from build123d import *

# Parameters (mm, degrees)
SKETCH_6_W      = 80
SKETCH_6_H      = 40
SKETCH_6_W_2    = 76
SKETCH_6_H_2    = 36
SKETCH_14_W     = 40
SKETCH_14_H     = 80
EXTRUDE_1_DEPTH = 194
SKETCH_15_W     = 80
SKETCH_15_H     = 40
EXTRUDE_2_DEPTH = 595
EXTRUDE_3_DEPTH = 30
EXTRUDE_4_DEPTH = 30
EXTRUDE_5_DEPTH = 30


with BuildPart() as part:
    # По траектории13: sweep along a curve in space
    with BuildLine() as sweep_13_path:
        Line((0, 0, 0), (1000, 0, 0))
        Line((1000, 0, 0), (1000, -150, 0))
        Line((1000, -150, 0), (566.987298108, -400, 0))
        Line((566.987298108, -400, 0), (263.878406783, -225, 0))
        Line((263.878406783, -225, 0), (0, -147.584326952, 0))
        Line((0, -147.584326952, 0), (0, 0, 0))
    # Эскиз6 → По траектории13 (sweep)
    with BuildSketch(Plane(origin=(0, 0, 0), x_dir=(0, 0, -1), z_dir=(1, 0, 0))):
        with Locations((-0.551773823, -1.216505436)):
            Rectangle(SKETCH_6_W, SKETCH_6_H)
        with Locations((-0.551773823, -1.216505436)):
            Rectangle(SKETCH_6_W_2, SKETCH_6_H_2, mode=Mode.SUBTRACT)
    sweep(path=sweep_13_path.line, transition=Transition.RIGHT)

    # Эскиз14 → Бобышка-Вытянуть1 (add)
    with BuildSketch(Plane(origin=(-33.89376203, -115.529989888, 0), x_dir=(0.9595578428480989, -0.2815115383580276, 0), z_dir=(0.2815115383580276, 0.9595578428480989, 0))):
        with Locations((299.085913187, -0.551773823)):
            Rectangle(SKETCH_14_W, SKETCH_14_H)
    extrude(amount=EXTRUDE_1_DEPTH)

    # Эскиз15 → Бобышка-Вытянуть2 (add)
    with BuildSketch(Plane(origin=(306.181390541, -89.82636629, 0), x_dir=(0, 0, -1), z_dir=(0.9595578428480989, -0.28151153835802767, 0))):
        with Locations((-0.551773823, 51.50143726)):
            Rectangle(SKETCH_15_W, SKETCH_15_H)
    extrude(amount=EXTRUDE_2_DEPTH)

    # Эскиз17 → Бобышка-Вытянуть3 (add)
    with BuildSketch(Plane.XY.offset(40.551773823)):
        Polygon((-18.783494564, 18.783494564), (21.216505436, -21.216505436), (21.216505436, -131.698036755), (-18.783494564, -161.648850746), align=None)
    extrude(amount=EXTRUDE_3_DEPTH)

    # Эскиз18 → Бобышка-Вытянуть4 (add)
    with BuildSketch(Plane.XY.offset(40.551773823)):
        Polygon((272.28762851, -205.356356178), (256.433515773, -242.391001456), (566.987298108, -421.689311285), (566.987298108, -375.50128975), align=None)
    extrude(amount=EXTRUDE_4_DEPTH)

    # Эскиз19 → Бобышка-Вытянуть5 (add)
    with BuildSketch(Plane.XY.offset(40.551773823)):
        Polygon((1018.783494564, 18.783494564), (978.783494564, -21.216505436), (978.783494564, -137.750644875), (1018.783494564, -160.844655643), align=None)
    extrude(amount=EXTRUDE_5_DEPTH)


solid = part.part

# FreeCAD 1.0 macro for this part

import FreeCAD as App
import Part
import Sketcher

V = App.Vector
Q = App.Units.Quantity


def add_polygon(sketch, points):
    """Adds a closed chain of lines whose ends are joined by coincident constraints."""
    first, n = sketch.GeometryCount, len(points)
    for a, b in zip(points, points[1:] + points[:1]):
        sketch.addGeometry(Part.LineSegment(App.Vector(*a, 0), App.Vector(*b, 0)), False)
    for i in range(n):
        sketch.addConstraint(Sketcher.Constraint("Coincident", first + i, 2, first + (i + 1) % n, 1))

doc = App.newDocument("Part")
params = doc.addObject("Spreadsheet::Sheet", "Params")
for row, (alias, value) in enumerate([
    ("sketch1_width", "40 mm"),
    ("sketch1_width2", "36 mm"),
    ("sketch1_height", "80 mm"),
    ("sketch1_height2", "76 mm"),
    ("sketch2_width", "1000 mm"),
    ("sketch2_height", "150 mm"),
    ("sketch2_length", "500 mm"),
    ("sketch2_length2", "350 mm"),
    ("sketch2_length3", "275 mm"),
    ("sketch3_width", "40 mm"),
    ("sketch3_height", "80 mm"),
    ("pad1_length", "194 mm"),
    ("sketch4_width", "80 mm"),
    ("sketch4_height", "40 mm"),
    ("pad2_length", "595 mm"),
    ("pad3_length", "30 mm"),
    ("pad4_length", "30 mm"),
    ("pad5_length", "30 mm"),
], start=1):
    params.set(f"A{row}", alias)
    params.set(f"B{row}", "=" + value)
    params.setAlias(f"B{row}", alias)

body = doc.addObject("PartDesign::Body", "Body")

# Sketch on YZ plane
sketch1 = body.newObject("Sketcher::SketchObject", "Sketch")
sketch1.AttachmentSupport = (doc.getObject("YZ_Plane"), [""])
sketch1.MapMode = "FlatFace"
add_polygon(sketch1, [(18.783495, 40.551774), (-21.216505, 40.551774), (-21.216505, -39.448226), (18.783495, -39.448226)])  # lines 0-3
add_polygon(sketch1, [(-19.216505, -37.448226), (-19.216505, 38.551774), (16.783495, 38.551774), (16.783495, -37.448226)])  # lines 4-7
sketch1.addConstraint(Sketcher.Constraint("Horizontal", 0))
sketch1.addConstraint(Sketcher.Constraint("Vertical", 1))
sketch1.addConstraint(Sketcher.Constraint("Horizontal", 2))
sketch1.addConstraint(Sketcher.Constraint("Vertical", 3))
sketch1.addConstraint(Sketcher.Constraint("Vertical", 4))
sketch1.addConstraint(Sketcher.Constraint("Horizontal", 5))
sketch1.addConstraint(Sketcher.Constraint("Vertical", 6))
sketch1.addConstraint(Sketcher.Constraint("Horizontal", 7))
sketch1.addConstraint(Sketcher.Constraint("DistanceX", 0, 2, 0, 1, Q("40 mm")))
sketch1.addConstraint(Sketcher.Constraint("DistanceX", 5, 1, 5, 2, Q("36 mm")))
sketch1.addConstraint(Sketcher.Constraint("DistanceY", 1, 2, 1, 1, Q("80 mm")))
sketch1.addConstraint(Sketcher.Constraint("DistanceY", 4, 1, 4, 2, Q("76 mm")))
sketch1.addConstraint(Sketcher.Constraint("DistanceX", 0, 2, 4, 2, Q("2 mm")))
sketch1.addConstraint(Sketcher.Constraint("DistanceY", 4, 2, 0, 2, Q("2 mm")))
sketch1.addConstraint(Sketcher.Constraint("DistanceX", 0, 2, -1, 1, Q("21.216505 mm")))
sketch1.addConstraint(Sketcher.Constraint("DistanceY", -1, 1, 0, 2, Q("40.551774 mm")))
sketch1.setExpression("Constraints[16]", "Params.sketch1_width")
sketch1.setExpression("Constraints[17]", "Params.sketch1_width2")
sketch1.setExpression("Constraints[18]", "Params.sketch1_height")
sketch1.setExpression("Constraints[19]", "Params.sketch1_height2")

# Sketch on XY plane
sketch2 = body.newObject("Sketcher::SketchObject", "Sketch001")
sketch2.AttachmentSupport = (doc.getObject("XY_Plane"), [""])
sketch2.MapMode = "FlatFace"
add_polygon(sketch2, [(0, 0), (1000, 0), (1000, -150), (566.987298, -400), (263.878407, -225), (0, -147.584327)])  # lines 0-5
sketch2.addConstraint(Sketcher.Constraint("Horizontal", 0))
sketch2.addConstraint(Sketcher.Constraint("Vertical", 1))
sketch2.addConstraint(Sketcher.Constraint("Vertical", 5))
sketch2.addConstraint(Sketcher.Constraint("Coincident", 5, 2, -1, 1))
sketch2.addConstraint(Sketcher.Constraint("DistanceX", 0, 1, 0, 2, Q("1000 mm")))
sketch2.addConstraint(Sketcher.Constraint("DistanceY", 1, 2, 1, 1, Q("150 mm")))
sketch2.addConstraint(Sketcher.Constraint("Angle", 2, Q("-150 deg")))
sketch2.addConstraint(Sketcher.Constraint("Angle", 3, Q("150 deg")))
sketch2.addConstraint(Sketcher.Constraint("Distance", 2, Q("500 mm")))
sketch2.addConstraint(Sketcher.Constraint("Distance", 3, Q("350 mm")))
sketch2.addConstraint(Sketcher.Constraint("Distance", 4, Q("275 mm")))
sketch2.setExpression("Constraints[10]", "Params.sketch2_width")
sketch2.setExpression("Constraints[11]", "Params.sketch2_height")
sketch2.setExpression("Constraints[14]", "Params.sketch2_length")
sketch2.setExpression("Constraints[15]", "Params.sketch2_length2")
sketch2.setExpression("Constraints[16]", "Params.sketch2_length3")
doc.recompute()

additivepipe = body.newObject("PartDesign::AdditivePipe", "AdditivePipe")
additivepipe.Profile = sketch1
additivepipe.Spine = (sketch2, ["Edge1", "Edge2", "Edge3", "Edge4", "Edge5", "Edge6"])
additivepipe.Transition = "Right corner"

# Sketch on an angled plane
sketch3 = body.newObject("Sketcher::SketchObject", "Sketch002")
sketch3.Placement = App.Placement(V(-33.893762, -115.52999, 0), App.Rotation(V(0.959557843, -0.281511538, 0), V(0, 0, -1), V(0.281511538, 0.959557843, 0), "ZXY"))
add_polygon(sketch3, [(279.085913, 39.448226), (279.085913, -40.551774), (319.085913, -40.551774), (319.085913, 39.448226)])  # lines 0-3
sketch3.addConstraint(Sketcher.Constraint("Vertical", 0))
sketch3.addConstraint(Sketcher.Constraint("Horizontal", 1))
sketch3.addConstraint(Sketcher.Constraint("Vertical", 2))
sketch3.addConstraint(Sketcher.Constraint("Horizontal", 3))
sketch3.addConstraint(Sketcher.Constraint("DistanceX", 1, 1, 1, 2, Q("40 mm")))
sketch3.addConstraint(Sketcher.Constraint("DistanceY", 0, 2, 0, 1, Q("80 mm")))
sketch3.addConstraint(Sketcher.Constraint("DistanceX", -1, 1, 0, 2, Q("279.085913 mm")))
sketch3.addConstraint(Sketcher.Constraint("DistanceY", 0, 2, -1, 1, Q("40.551774 mm")))
sketch3.setExpression("Constraints[8]", "Params.sketch3_width")
sketch3.setExpression("Constraints[9]", "Params.sketch3_height")
pad1 = body.newObject("PartDesign::Pad", "Pad")
pad1.Profile = sketch3
pad1.setExpression("Length", "Params.pad1_length")

# Sketch on an angled plane
sketch4 = body.newObject("Sketcher::SketchObject", "Sketch003")
sketch4.Placement = App.Placement(V(306.181391, -89.826366, 0), App.Rotation(V(0, 0, -1), V(0.281511538, 0.959557843, 0), V(0.959557843, -0.281511538, 0), "ZXY"))
add_polygon(sketch4, [(-40.551774, 71.501437), (-40.551774, 31.501437), (39.448226, 31.501437), (39.448226, 71.501437)])  # lines 0-3
sketch4.addConstraint(Sketcher.Constraint("Vertical", 0))
sketch4.addConstraint(Sketcher.Constraint("Horizontal", 1))
sketch4.addConstraint(Sketcher.Constraint("Vertical", 2))
sketch4.addConstraint(Sketcher.Constraint("Horizontal", 3))
sketch4.addConstraint(Sketcher.Constraint("DistanceX", 1, 1, 1, 2, Q("80 mm")))
sketch4.addConstraint(Sketcher.Constraint("DistanceY", 0, 2, 0, 1, Q("40 mm")))
sketch4.addConstraint(Sketcher.Constraint("DistanceX", 0, 2, -1, 1, Q("40.551774 mm")))
sketch4.addConstraint(Sketcher.Constraint("DistanceY", -1, 1, 0, 2, Q("31.501437 mm")))
sketch4.setExpression("Constraints[8]", "Params.sketch4_width")
sketch4.setExpression("Constraints[9]", "Params.sketch4_height")
pad2 = body.newObject("PartDesign::Pad", "Pad001")
pad2.Profile = sketch4
pad2.setExpression("Length", "Params.pad2_length")

# Sketch on XY plane
sketch5 = body.newObject("Sketcher::SketchObject", "Sketch004")
sketch5.AttachmentSupport = (doc.getObject("XY_Plane"), [""])
sketch5.MapMode = "FlatFace"
sketch5.AttachmentOffset = App.Placement(V(0, 0, 40.551774), App.Rotation())
add_polygon(sketch5, [(21.216505, -21.216505), (-18.783495, 18.783495), (-18.783495, -161.648851), (21.216505, -131.698037)])  # lines 0-3
sketch5.addConstraint(Sketcher.Constraint("Vertical", 1))
sketch5.addConstraint(Sketcher.Constraint("Vertical", 3))
sketch5.addConstraint(Sketcher.Constraint("Angle", 0, Q("135 deg")))
sketch5.addConstraint(Sketcher.Constraint("DistanceX", 1, 2, 2, 2, Q("40 mm")))
sketch5.addConstraint(Sketcher.Constraint("DistanceY", 3, 1, 3, 2, Q("110.481531 mm")))
sketch5.addConstraint(Sketcher.Constraint("DistanceY", 1, 2, 1, 1, Q("180.432345 mm")))
sketch5.addConstraint(Sketcher.Constraint("DistanceY", 1, 2, -1, 1, Q("161.648851 mm")))
sketch5.addConstraint(Sketcher.Constraint("DistanceX", 0, 2, -1, 1, Q("18.783495 mm")))
pad3 = body.newObject("PartDesign::Pad", "Pad002")
pad3.Profile = sketch5
pad3.setExpression("Length", "Params.pad3_length")

# Sketch on XY plane
sketch6 = body.newObject("Sketcher::SketchObject", "Sketch005")
sketch6.AttachmentSupport = (doc.getObject("XY_Plane"), [""])
sketch6.MapMode = "FlatFace"
sketch6.AttachmentOffset = App.Placement(V(0, 0, 40.551774), App.Rotation())
add_polygon(sketch6, [(272.287629, -205.356356), (256.433516, -242.391001), (566.987298, -421.689311), (566.987298, -375.50129)])  # lines 0-3
sketch6.addConstraint(Sketcher.Constraint("Vertical", 2))
sketch6.addConstraint(Sketcher.Constraint("Parallel", 1, 3))
sketch6.addConstraint(Sketcher.Constraint("Angle", 1, Q("-30 deg")))
sketch6.addConstraint(Sketcher.Constraint("DistanceY", 0, 2, -1, 1, Q("242.391001 mm")))
sketch6.addConstraint(Sketcher.Constraint("DistanceY", 2, 1, 2, 2, Q("46.188022 mm")))
sketch6.addConstraint(Sketcher.Constraint("DistanceX", -1, 1, 1, 2, Q("566.987298 mm")))
sketch6.addConstraint(Sketcher.Constraint("Distance", 1, Q("358.59662 mm")))
sketch6.addConstraint(Sketcher.Constraint("DistanceX", -1, 1, 3, 2, Q("272.287629 mm")))
pad4 = body.newObject("PartDesign::Pad", "Pad003")
pad4.Profile = sketch6
pad4.setExpression("Length", "Params.pad4_length")

# Sketch on XY plane
sketch7 = body.newObject("Sketcher::SketchObject", "Sketch006")
sketch7.AttachmentSupport = (doc.getObject("XY_Plane"), [""])
sketch7.MapMode = "FlatFace"
sketch7.AttachmentOffset = App.Placement(V(0, 0, 40.551774), App.Rotation())
add_polygon(sketch7, [(1018.783495, 18.783495), (978.783495, -21.216505), (978.783495, -137.750645), (1018.783495, -160.844656)])  # lines 0-3
sketch7.addConstraint(Sketcher.Constraint("Vertical", 1))
sketch7.addConstraint(Sketcher.Constraint("Vertical", 3))
sketch7.addConstraint(Sketcher.Constraint("Angle", 0, Q("-135 deg")))
sketch7.addConstraint(Sketcher.Constraint("Angle", 2, Q("-30 deg")))
sketch7.addConstraint(Sketcher.Constraint("DistanceX", 1, 2, 2, 2, Q("40 mm")))
sketch7.addConstraint(Sketcher.Constraint("DistanceY", 1, 2, 1, 1, Q("116.534139 mm")))
sketch7.addConstraint(Sketcher.Constraint("DistanceX", -1, 1, 0, 2, Q("978.783495 mm")))
sketch7.addConstraint(Sketcher.Constraint("DistanceY", 0, 2, -1, 1, Q("21.216505 mm")))
pad5 = body.newObject("PartDesign::Pad", "Pad004")
pad5.Profile = sketch7
pad5.setExpression("Length", "Params.pad5_length")

doc.recompute()
